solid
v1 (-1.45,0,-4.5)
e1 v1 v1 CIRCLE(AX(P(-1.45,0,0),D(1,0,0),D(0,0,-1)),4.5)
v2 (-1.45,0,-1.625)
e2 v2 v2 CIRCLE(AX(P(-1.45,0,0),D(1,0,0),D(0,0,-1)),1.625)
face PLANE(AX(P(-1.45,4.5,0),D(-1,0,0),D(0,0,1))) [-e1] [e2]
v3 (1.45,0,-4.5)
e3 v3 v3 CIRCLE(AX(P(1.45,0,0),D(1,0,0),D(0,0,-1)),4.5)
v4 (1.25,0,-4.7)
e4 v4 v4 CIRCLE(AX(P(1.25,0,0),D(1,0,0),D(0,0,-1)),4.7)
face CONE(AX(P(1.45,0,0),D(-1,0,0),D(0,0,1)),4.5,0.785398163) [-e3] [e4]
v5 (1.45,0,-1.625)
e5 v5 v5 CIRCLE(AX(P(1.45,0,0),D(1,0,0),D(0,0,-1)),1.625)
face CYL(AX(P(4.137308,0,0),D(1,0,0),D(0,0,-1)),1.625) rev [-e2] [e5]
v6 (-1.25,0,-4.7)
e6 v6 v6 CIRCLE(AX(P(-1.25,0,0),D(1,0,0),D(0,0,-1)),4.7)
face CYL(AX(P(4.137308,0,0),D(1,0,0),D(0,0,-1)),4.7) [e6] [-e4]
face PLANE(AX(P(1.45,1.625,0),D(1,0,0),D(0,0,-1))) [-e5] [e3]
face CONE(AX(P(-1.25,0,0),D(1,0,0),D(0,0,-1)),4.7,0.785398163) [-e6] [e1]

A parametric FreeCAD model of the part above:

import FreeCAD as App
import Part
import Sketcher

V = App.Vector


def add_polygon(sketch, points):
    """Adds a closed chain of lines whose ends are joined by coincident constraints."""
    first, n = sketch.GeometryCount, len(points)
    for a, b in zip(points, points[1:] + points[:1]):
        sketch.addGeometry(Part.LineSegment(App.Vector(*a, 0), App.Vector(*b, 0)), False)
    for i in range(n):
        sketch.addConstraint(Sketcher.Constraint("Coincident", first + i, 2, first + (i + 1) % n, 1))

doc = App.newDocument("Part")
body = doc.addObject("PartDesign::Body", "Body")

# Sketch on XY plane
sketch1 = body.newObject("Sketcher::SketchObject", "Sketch")
sketch1.AttachmentSupport = (doc.getObject("XY_Plane"), [""])
sketch1.MapMode = "FlatFace"
add_polygon(sketch1, [(1.45, 1.62), (1.45, 4.5), (1.25, 4.7), (-1.25, 4.7), (-1.45, 4.5), (-1.45, 1.62)])  # lines 0-5
sketch1.addConstraint(Sketcher.Constraint("Vertical", 0))
sketch1.addConstraint(Sketcher.Constraint("Horizontal", 2))
sketch1.addConstraint(Sketcher.Constraint("Vertical", 4))
sketch1.addConstraint(Sketcher.Constraint("Horizontal", 5))
sketch1.addConstraint(Sketcher.Constraint("Symmetric", 0, 2, 3, 2, -2))
sketch1.addConstraint(Sketcher.Constraint("Perpendicular", 1, 3))
sketch1.addConstraint(Sketcher.Constraint("Equal", 1, 3))
sketch1.addConstraint(Sketcher.Constraint("DistanceX", 2, 2, 2, 1, 2.5))
sketch1.addConstraint(Sketcher.Constraint("DistanceX", 5, 1, 5, 2, 2.9))
sketch1.addConstraint(Sketcher.Constraint("DistanceY", -1, 1, 0, 2, 4.5))
sketch1.addConstraint(Sketcher.Constraint("DistanceY", 0, 1, 0, 2, 2.875))
revolution = body.newObject("PartDesign::Revolution", "Revolution")
revolution.Profile = sketch1
revolution.ReferenceAxis = (sketch1, ["H_Axis"])
revolution.Angle = 360

doc.recompute()
